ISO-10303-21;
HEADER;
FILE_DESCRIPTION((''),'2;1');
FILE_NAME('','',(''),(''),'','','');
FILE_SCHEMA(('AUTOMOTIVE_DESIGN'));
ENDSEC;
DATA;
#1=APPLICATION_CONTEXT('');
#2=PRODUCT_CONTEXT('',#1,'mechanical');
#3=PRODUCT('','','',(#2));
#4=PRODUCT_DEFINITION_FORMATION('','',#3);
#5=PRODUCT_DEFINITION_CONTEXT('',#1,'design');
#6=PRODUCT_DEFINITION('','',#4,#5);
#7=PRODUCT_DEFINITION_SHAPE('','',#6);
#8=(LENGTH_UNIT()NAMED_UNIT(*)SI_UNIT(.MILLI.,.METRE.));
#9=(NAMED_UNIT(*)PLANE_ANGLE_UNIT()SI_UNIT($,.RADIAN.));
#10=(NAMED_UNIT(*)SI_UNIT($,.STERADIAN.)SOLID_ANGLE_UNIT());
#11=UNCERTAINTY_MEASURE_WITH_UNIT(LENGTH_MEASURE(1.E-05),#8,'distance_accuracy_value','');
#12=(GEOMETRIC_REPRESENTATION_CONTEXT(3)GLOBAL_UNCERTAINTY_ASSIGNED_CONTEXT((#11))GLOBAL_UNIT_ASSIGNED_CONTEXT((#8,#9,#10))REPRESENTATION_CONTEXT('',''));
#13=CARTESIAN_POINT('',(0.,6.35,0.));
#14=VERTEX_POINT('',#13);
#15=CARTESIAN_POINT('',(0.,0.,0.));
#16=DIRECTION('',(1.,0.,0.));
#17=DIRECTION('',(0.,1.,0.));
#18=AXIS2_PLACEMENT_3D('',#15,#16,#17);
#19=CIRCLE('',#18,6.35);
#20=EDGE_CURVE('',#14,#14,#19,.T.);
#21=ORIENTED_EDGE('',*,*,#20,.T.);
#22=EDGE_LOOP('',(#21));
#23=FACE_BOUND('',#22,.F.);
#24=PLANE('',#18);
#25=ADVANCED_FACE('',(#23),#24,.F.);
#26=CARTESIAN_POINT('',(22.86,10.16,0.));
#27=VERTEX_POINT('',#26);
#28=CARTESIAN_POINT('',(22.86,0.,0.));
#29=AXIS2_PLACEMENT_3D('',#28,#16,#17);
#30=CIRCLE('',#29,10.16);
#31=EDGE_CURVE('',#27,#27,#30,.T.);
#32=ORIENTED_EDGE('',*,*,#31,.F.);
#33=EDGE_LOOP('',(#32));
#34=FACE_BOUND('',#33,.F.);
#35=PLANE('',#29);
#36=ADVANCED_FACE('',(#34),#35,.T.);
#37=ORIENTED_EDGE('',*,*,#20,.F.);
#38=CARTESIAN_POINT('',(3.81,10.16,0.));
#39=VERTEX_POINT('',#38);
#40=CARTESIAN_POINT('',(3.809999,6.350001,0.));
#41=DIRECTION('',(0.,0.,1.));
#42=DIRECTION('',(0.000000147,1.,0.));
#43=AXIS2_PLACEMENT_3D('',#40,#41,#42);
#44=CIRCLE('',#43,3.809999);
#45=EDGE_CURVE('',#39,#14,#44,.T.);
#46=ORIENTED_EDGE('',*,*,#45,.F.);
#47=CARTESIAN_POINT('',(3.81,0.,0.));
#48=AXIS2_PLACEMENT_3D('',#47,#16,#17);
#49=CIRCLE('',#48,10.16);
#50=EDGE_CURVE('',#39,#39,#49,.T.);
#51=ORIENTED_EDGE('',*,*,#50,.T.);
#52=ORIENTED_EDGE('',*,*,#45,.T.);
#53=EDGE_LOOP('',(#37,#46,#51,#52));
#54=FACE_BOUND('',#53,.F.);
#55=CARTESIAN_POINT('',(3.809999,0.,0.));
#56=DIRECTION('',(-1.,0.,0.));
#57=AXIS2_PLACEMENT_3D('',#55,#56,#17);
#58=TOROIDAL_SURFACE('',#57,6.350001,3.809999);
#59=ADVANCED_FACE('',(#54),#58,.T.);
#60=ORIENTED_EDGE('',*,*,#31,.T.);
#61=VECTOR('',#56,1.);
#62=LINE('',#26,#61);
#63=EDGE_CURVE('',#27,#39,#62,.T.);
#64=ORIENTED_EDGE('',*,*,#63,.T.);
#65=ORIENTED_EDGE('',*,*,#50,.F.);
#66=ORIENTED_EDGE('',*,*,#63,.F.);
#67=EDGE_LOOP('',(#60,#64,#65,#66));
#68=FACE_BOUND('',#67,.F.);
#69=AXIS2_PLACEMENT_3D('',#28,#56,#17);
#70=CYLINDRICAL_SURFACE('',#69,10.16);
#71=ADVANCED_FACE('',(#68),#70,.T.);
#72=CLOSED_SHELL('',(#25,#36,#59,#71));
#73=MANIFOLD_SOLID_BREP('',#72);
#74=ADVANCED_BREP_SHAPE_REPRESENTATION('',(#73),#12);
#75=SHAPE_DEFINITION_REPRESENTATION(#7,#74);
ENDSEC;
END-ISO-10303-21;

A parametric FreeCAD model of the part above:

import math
import FreeCAD as App
import Part
import Sketcher

V = App.Vector
Q = App.Units.Quantity

doc = App.newDocument("Part")
body = doc.addObject("PartDesign::Body", "Body")

# Sketch on XY plane
sketch1 = body.newObject("Sketcher::SketchObject", "Sketch")
sketch1.AttachmentSupport = (doc.getObject("XY_Plane"), [""])
sketch1.MapMode = "FlatFace"
sketch1.addGeometry([
    Part.LineSegment(V(0, 6.3, 0), V(0, 0, 0)),  # 0
    Part.LineSegment(V(0, 0, 0), V(22.9, 0, 0)),  # 1
    Part.LineSegment(V(22.9, 0, 0), V(22.9, 10.2, 0)),  # 2
    Part.LineSegment(V(22.9, 10.2, 0), V(3.8, 10.2, 0)),  # 3
    Part.ArcOfCircle(Part.Circle(V(3.8, 6.4, 0), V(0, 0, 1), 3.8), math.radians(90), math.radians(180)),  # 4
], False)
sketch1.addConstraint([
    Sketcher.Constraint("Coincident", 0, 2, 1, 1),
    Sketcher.Constraint("Coincident", 1, 2, 2, 1),
    Sketcher.Constraint("Coincident", 2, 2, 3, 1),
    Sketcher.Constraint("Tangent", 3, 2, 4, 1),
    Sketcher.Constraint("Tangent", 4, 2, 0, 1),
    Sketcher.Constraint("Vertical", 0),
    Sketcher.Constraint("Horizontal", 1),
    Sketcher.Constraint("Vertical", 2),
    Sketcher.Constraint("Horizontal", 3),
    Sketcher.Constraint("Coincident", 0, 2, -1, 1),
    Sketcher.Constraint("Radius", 4, Q("0.15 in")),
    Sketcher.Constraint("DistanceX", 1, 1, 1, 2, Q("0.9 in")),
    Sketcher.Constraint("DistanceY", 2, 1, 2, 2, Q("0.4 in")),
])
revolution = body.newObject("PartDesign::Revolution", "Revolution")
revolution.Profile = sketch1
revolution.ReferenceAxis = (sketch1, ["H_Axis"])
revolution.Angle = 360

doc.recompute()
